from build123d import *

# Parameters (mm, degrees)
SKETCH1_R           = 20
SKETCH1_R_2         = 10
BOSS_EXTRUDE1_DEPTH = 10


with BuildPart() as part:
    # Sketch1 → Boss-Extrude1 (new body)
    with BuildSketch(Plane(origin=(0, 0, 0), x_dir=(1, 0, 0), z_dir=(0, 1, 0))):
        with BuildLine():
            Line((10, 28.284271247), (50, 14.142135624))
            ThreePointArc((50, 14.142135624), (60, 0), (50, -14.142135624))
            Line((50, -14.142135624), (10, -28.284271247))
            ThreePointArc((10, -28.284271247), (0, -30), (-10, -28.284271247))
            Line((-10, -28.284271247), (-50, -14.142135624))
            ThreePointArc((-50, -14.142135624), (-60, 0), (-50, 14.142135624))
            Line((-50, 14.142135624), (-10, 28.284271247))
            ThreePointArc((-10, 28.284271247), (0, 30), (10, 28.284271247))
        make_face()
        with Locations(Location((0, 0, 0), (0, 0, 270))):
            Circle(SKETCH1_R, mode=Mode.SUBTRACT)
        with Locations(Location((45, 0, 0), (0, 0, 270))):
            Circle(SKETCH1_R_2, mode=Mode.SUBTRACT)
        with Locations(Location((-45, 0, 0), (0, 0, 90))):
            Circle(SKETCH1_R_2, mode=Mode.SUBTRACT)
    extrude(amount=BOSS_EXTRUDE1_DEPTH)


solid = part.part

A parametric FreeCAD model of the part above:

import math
import FreeCAD as App
import Part
import Sketcher
Q = App.Units.Quantity

doc = App.newDocument("Part")
body = doc.addObject("PartDesign::Body", "Body")

sketch1 = doc.addObject("Sketcher::SketchObject", "Sketch")
body.addObject(sketch1)
sketch1.AttachmentSupport = (doc.XZ_Plane, [""])
sketch1.MapMode = "FlatFace"
sketch1.addGeometry(Part.LineSegment(App.Vector(50, -14, 0), App.Vector(10, -28, 0)), False)
sketch1.addGeometry(Part.ArcOfCircle(Part.Circle(App.Vector(0, 0, 0), App.Vector(0, 0, 1), 30), math.radians(-109), math.radians(-71)), False)
sketch1.addGeometry(Part.LineSegment(App.Vector(-10, -28, 0), App.Vector(-50, -14, 0)), False)
sketch1.addGeometry(Part.ArcOfCircle(Part.Circle(App.Vector(-45, 0, 0), App.Vector(0, 0, 1), 15), math.radians(109), math.radians(251)), False)
sketch1.addGeometry(Part.LineSegment(App.Vector(-50, 14, 0), App.Vector(-10, 28, 0)), False)
sketch1.addGeometry(Part.ArcOfCircle(Part.Circle(App.Vector(0, 0, 0), App.Vector(0, 0, 1), 30), math.radians(71), math.radians(109)), False)
sketch1.addGeometry(Part.LineSegment(App.Vector(10, 28, 0), App.Vector(50, 14, 0)), False)
sketch1.addGeometry(Part.ArcOfCircle(Part.Circle(App.Vector(45, 0, 0), App.Vector(0, 0, 1), 15), math.radians(-71), math.radians(71)), False)
sketch1.addGeometry(Part.Circle(App.Vector(45, 0, 0), App.Vector(0, 0, 1), 10), False)
sketch1.addGeometry(Part.Circle(App.Vector(0, 0, 0), App.Vector(0, 0, 1), 20), False)
sketch1.addGeometry(Part.Circle(App.Vector(-45, 0, 0), App.Vector(0, 0, 1), 10), False)
sketch1.addConstraint(Sketcher.Constraint("Tangent", 0, 2, 1, 2))
sketch1.addConstraint(Sketcher.Constraint("Tangent", 1, 1, 2, 1))
sketch1.addConstraint(Sketcher.Constraint("Tangent", 2, 2, 3, 2))
sketch1.addConstraint(Sketcher.Constraint("Tangent", 3, 1, 4, 1))
sketch1.addConstraint(Sketcher.Constraint("Tangent", 4, 2, 5, 2))
sketch1.addConstraint(Sketcher.Constraint("Tangent", 5, 1, 6, 1))
sketch1.addConstraint(Sketcher.Constraint("Tangent", 6, 2, 7, 2))
sketch1.addConstraint(Sketcher.Constraint("Tangent", 7, 1, 0, 1))
sketch1.addConstraint(Sketcher.Constraint("Coincident", 1, 3, -1, 1))
sketch1.addConstraint(Sketcher.Constraint("Coincident", 5, 3, -1, 1))
sketch1.addConstraint(Sketcher.Constraint("Coincident", 9, 3, -1, 1))
sketch1.addConstraint(Sketcher.Constraint("Coincident", 8, 3, 7, 3))
sketch1.addConstraint(Sketcher.Constraint("Coincident", 10, 3, 3, 3))
sketch1.addConstraint(Sketcher.Constraint("Equal", 1, 5))
sketch1.addConstraint(Sketcher.Constraint("Equal", 3, 7))
sketch1.addConstraint(Sketcher.Constraint("Equal", 8, 10))
sketch1.addConstraint(Sketcher.Constraint("Symmetric", 3, 3, 7, 3, -1, 1))
sketch1.addConstraint(Sketcher.Constraint("PointOnObject", 3, 3, -1))
sketch1.addConstraint(Sketcher.Constraint("Diameter", 8, Q("20 mm")))
sketch1.addConstraint(Sketcher.Constraint("Diameter", 9, Q("40 mm")))
sketch1.addConstraint(Sketcher.Constraint("Radius", 1, Q("30 mm")))
sketch1.addConstraint(Sketcher.Constraint("Radius", 3, Q("15 mm")))
sketch1.addConstraint(Sketcher.Constraint("DistanceX", 3, 3, -1, 1, Q("45 mm")))
pad1 = doc.addObject("PartDesign::Pad", "Pad")
body.addObject(pad1)
pad1.Profile = sketch1
pad1.Length = 10
pad1.Reversed = True

doc.recompute()
